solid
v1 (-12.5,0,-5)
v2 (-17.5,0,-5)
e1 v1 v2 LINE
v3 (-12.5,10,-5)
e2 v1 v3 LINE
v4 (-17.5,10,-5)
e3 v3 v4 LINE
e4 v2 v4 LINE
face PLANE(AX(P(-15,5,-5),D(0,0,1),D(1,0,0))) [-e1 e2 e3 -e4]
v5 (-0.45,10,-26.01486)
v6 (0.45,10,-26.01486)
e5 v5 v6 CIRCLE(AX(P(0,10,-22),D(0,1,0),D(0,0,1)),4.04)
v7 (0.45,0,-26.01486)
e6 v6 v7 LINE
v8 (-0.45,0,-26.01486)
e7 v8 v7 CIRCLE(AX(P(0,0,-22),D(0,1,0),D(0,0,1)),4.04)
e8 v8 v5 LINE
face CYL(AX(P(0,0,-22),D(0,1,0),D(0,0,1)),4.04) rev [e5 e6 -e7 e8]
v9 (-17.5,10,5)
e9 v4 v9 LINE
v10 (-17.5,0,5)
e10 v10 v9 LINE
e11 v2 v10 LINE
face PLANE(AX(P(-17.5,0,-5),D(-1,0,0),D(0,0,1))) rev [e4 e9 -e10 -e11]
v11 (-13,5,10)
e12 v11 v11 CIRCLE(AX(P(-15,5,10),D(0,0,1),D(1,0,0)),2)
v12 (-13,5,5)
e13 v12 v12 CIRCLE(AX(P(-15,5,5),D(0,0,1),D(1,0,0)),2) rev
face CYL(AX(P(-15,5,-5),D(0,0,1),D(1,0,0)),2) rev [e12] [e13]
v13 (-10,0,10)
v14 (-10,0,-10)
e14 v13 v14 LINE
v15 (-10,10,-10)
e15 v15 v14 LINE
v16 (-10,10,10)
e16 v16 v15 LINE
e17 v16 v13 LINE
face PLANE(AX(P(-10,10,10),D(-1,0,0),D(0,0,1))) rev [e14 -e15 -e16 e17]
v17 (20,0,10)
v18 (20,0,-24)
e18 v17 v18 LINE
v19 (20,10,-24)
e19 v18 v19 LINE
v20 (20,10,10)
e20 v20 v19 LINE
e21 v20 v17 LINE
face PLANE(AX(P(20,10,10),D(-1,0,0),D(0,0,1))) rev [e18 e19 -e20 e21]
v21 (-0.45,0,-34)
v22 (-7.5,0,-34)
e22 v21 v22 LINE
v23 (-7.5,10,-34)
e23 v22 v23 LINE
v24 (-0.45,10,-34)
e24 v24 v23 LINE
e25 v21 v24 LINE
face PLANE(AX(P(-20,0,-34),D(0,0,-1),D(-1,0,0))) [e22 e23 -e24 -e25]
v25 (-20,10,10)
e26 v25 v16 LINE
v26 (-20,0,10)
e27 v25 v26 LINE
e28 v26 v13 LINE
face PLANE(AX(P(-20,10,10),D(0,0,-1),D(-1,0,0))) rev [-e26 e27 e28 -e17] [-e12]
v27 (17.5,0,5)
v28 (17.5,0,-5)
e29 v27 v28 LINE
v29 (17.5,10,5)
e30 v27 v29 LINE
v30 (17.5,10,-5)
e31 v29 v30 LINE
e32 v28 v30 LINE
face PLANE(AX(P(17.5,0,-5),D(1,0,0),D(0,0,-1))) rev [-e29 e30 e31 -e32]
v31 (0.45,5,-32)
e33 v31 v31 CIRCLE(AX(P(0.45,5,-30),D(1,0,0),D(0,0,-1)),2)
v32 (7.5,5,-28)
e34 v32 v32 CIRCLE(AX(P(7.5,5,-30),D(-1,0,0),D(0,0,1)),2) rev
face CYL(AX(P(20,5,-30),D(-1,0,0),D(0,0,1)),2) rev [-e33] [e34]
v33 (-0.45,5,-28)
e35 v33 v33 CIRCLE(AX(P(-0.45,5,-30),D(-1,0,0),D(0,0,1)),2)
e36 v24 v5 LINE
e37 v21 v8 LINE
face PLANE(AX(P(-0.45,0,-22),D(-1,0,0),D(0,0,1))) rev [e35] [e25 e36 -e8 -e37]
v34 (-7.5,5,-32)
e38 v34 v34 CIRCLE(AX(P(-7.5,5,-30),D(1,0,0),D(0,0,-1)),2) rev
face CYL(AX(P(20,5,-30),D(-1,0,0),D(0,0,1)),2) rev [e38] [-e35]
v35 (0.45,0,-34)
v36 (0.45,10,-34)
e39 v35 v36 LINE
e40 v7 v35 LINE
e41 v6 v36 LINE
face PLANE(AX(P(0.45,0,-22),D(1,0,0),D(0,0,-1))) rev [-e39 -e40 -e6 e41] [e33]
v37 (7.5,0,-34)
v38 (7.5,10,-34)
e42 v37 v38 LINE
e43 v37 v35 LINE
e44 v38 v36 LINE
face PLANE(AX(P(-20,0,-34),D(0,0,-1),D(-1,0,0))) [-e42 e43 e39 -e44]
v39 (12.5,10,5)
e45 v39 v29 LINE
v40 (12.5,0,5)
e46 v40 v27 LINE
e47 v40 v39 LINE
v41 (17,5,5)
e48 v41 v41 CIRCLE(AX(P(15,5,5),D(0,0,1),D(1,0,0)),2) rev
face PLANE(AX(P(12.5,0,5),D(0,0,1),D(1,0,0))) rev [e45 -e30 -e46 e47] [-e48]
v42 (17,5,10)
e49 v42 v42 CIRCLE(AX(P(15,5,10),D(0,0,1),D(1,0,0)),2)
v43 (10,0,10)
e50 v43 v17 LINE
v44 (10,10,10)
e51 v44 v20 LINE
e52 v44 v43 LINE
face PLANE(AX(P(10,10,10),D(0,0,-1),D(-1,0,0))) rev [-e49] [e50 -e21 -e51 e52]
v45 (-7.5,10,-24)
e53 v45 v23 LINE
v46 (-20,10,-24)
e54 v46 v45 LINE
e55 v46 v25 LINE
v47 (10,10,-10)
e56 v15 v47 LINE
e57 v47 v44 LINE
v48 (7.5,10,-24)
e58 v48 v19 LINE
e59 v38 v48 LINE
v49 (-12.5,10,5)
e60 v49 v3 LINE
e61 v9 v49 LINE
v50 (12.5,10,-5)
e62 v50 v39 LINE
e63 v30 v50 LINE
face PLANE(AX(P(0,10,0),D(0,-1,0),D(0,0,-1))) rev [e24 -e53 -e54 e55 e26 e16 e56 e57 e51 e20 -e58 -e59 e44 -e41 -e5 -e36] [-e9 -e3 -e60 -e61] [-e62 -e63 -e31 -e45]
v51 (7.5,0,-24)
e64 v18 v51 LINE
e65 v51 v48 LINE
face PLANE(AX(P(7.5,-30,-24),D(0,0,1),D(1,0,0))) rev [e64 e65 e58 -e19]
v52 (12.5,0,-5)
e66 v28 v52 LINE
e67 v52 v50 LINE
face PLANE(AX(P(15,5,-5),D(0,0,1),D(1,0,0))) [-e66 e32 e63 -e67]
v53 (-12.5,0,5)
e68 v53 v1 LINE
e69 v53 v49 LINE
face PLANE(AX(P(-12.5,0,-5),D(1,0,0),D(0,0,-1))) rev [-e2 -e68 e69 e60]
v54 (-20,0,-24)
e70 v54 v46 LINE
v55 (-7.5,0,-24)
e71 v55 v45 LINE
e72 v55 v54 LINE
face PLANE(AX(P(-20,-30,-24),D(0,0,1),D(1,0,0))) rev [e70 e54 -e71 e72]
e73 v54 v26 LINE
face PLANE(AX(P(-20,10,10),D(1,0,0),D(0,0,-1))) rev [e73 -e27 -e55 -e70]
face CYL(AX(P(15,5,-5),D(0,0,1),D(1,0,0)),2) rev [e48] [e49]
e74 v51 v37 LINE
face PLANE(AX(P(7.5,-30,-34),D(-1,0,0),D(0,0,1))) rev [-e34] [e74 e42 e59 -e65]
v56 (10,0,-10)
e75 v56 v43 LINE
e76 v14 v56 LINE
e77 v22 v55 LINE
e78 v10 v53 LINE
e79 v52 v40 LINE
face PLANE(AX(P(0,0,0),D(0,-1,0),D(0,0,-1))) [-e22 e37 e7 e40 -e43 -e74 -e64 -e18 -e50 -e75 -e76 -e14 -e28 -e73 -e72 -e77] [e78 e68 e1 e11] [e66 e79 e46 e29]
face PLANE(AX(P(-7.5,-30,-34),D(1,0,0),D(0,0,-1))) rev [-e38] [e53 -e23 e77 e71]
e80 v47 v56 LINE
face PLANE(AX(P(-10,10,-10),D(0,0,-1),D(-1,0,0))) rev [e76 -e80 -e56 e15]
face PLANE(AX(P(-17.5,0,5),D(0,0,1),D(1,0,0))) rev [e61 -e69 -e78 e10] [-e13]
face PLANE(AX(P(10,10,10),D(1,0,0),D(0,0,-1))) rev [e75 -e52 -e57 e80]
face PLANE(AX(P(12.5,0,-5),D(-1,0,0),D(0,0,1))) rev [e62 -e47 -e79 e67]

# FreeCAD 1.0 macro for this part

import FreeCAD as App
import Part
import Sketcher


def add_polygon(sketch, points):
    """Adds a closed chain of lines whose ends are joined by coincident constraints."""
    first, n = sketch.GeometryCount, len(points)
    for a, b in zip(points, points[1:] + points[:1]):
        sketch.addGeometry(Part.LineSegment(App.Vector(*a, 0), App.Vector(*b, 0)), False)
    for i in range(n):
        sketch.addConstraint(Sketcher.Constraint("Coincident", first + i, 2, first + (i + 1) % n, 1))

doc = App.newDocument("Part")
body = doc.addObject("PartDesign::Body", "Body")

# Sketch on XZ plane
sketch1 = doc.addObject("Sketcher::SketchObject", "Sketch")
body.addObject(sketch1)
sketch1.AttachmentSupport = (doc.XZ_Plane, [""])
sketch1.MapMode = "FlatFace"
add_polygon(sketch1, [(-20, -20), (-20, 10), (-10, 10), (-10, -10), (10, -10), (10, 10), (20, 10), (20, -20)])  # lines 0-7
sketch1.addConstraint([
    Sketcher.Constraint("Vertical", 0),
    Sketcher.Constraint("Horizontal", 1),
    Sketcher.Constraint("Vertical", 2),
    Sketcher.Constraint("Horizontal", 3),
    Sketcher.Constraint("Vertical", 4),
    Sketcher.Constraint("Horizontal", 5),
    Sketcher.Constraint("Vertical", 6),
    Sketcher.Constraint("Horizontal", 7),
    Sketcher.Constraint("Symmetric", 1, 2, 3, 2, -1, 1),
    Sketcher.Constraint("Symmetric", 0, 2, 5, 2, -2),
    Sketcher.Constraint("Equal", 3, 2),
    Sketcher.Constraint("DistanceX", 1, 1, 1, 2, 10.0),
    Sketcher.Constraint("DistanceX", 3, 1, 3, 2, 20.0),
    Sketcher.Constraint("DistanceY", 0, 1, 0, 2, 30.0),
])
pad1 = doc.addObject("PartDesign::Pad", "Pad")
body.addObject(pad1)
pad1.Profile = sketch1
pad1.Length = 10
pad1.Reversed = True

# Sketch on XY plane
sketch2 = doc.addObject("Sketcher::SketchObject", "Sketch001")
body.addObject(sketch2)
sketch2.AttachmentSupport = (doc.XY_Plane, [""])
sketch2.MapMode = "FlatFace"
sketch2.AttachmentOffset = App.Placement(App.Vector(0, 0, 10), App.Rotation())
sketch2.addGeometry([
    Part.Circle(App.Vector(-15, 5, 0), App.Vector(0, 0, 1), 2),
    Part.Circle(App.Vector(15, 5, 0), App.Vector(0, 0, 1), 2),
], False)
sketch2.addConstraint([
    Sketcher.Constraint("Equal", 0, 1),
    Sketcher.Constraint("Symmetric", 0, 3, 1, 3, -2),
    Sketcher.Constraint("Diameter", 0, 4.0),
    Sketcher.Constraint("DistanceX", 0, 3, -1, 1, 15.0),
    Sketcher.Constraint("DistanceY", -1, 1, 0, 3, 5.0),
])
pocket1 = doc.addObject("PartDesign::Pocket", "Pocket")
body.addObject(pocket1)
pocket1.Profile = sketch2
pocket1.Length = 15

# Sketch on XY plane
sketch3 = doc.addObject("Sketcher::SketchObject", "Sketch002")
body.addObject(sketch3)
sketch3.AttachmentSupport = (doc.XY_Plane, [""])
sketch3.MapMode = "FlatFace"
sketch3.AttachmentOffset = App.Placement(App.Vector(0, 0, -10), App.Rotation())
sketch3.addGeometry(Part.Circle(App.Vector(0, 5, 0), App.Vector(0, 0, 1), 2), False)
sketch3.addConstraint([
    Sketcher.Constraint("PointOnObject", 0, 3, -2),
    Sketcher.Constraint("Diameter", 0, 4.0),
    Sketcher.Constraint("DistanceY", -1, 1, 0, 3, 5.0),
])
pocket2 = doc.addObject("PartDesign::Pocket", "Pocket001")
body.addObject(pocket2)
pocket2.Profile = sketch3
pocket2.Length = 11

# Sketch on XZ plane
sketch4 = doc.addObject("Sketcher::SketchObject", "Sketch003")
body.addObject(sketch4)
sketch4.AttachmentSupport = (doc.XZ_Plane, [""])
sketch4.MapMode = "FlatFace"
sketch4.AttachmentOffset = App.Placement(App.Vector(0, 0, -10), App.Rotation())
add_polygon(sketch4, [(-20, -34), (-20, -10), (20, -10), (20, -34)])  # lines 0-3
sketch4.addConstraint([
    Sketcher.Constraint("Vertical", 0),
    Sketcher.Constraint("Horizontal", 1),
    Sketcher.Constraint("Vertical", 2),
    Sketcher.Constraint("Horizontal", 3),
    Sketcher.Constraint("DistanceX", 1, 1, 1, 2, 40.0),
    Sketcher.Constraint("DistanceY", 0, 1, 0, 2, 24.0),
    Sketcher.Constraint("DistanceX", 0, 2, -1, 1, 20.0),
    Sketcher.Constraint("DistanceY", 0, 2, -1, 1, 10.0),
])
pad2 = doc.addObject("PartDesign::Pad", "Pad001")
body.addObject(pad2)
pad2.Profile = sketch4
pad2.Length = 10

# Sketch on XZ plane
sketch5 = doc.addObject("Sketcher::SketchObject", "Sketch004")
body.addObject(sketch5)
sketch5.AttachmentSupport = (doc.XZ_Plane, [""])
sketch5.MapMode = "FlatFace"
sketch5.AttachmentOffset = App.Placement(App.Vector(0, 0, -10), App.Rotation())
sketch5.addGeometry(Part.Circle(App.Vector(0, -22, 0), App.Vector(0, 0, 1), 4.04), False)
sketch5.addConstraint([
    Sketcher.Constraint("PointOnObject", 0, 3, -2),
    Sketcher.Constraint("Diameter", 0, 8.08),
    Sketcher.Constraint("DistanceY", 0, 3, -1, 1, 22.0),
])
pocket3 = doc.addObject("PartDesign::Pocket", "Pocket002")
body.addObject(pocket3)
pocket3.Profile = sketch5
pocket3.Type = "ThroughAll"
pocket3.Reversed = True

# Sketch on XZ plane
sketch6 = doc.addObject("Sketcher::SketchObject", "Sketch005")
body.addObject(sketch6)
sketch6.AttachmentSupport = (doc.XZ_Plane, [""])
sketch6.MapMode = "FlatFace"
sketch6.AttachmentOffset = App.Placement(App.Vector(0, 0, -10), App.Rotation())
add_polygon(sketch6, [(-0.45, -34), (-0.45, -22), (0.45, -22), (0.45, -34)])  # lines 0-3
sketch6.addConstraint([
    Sketcher.Constraint("Vertical", 0),
    Sketcher.Constraint("Horizontal", 1),
    Sketcher.Constraint("Vertical", 2),
    Sketcher.Constraint("Horizontal", 3),
    Sketcher.Constraint("DistanceY", 0, 1, 0, 2, 12.0),
    Sketcher.Constraint("DistanceX", 1, 1, 1, 2, 0.9),
    Sketcher.Constraint("DistanceY", 0, 2, -1, 1, 22.0),
    Sketcher.Constraint("DistanceX", 0, 2, -1, 1, 0.45),
])
pocket4 = doc.addObject("PartDesign::Pocket", "Pocket003")
body.addObject(pocket4)
pocket4.Profile = sketch6
pocket4.Type = "ThroughAll"
pocket4.Reversed = True

# Sketch on YZ plane
sketch7 = doc.addObject("Sketcher::SketchObject", "Sketch006")
body.addObject(sketch7)
sketch7.AttachmentSupport = (doc.YZ_Plane, [""])
sketch7.MapMode = "FlatFace"
sketch7.AttachmentOffset = App.Placement(App.Vector(0, 0, -20), App.Rotation())
sketch7.addGeometry(Part.Circle(App.Vector(5, -30, 0), App.Vector(0, 0, 1), 2), False)
sketch7.addConstraint([
    Sketcher.Constraint("Diameter", 0, 4.0),
    Sketcher.Constraint("DistanceX", -1, 1, 0, 3, 5.0),
    Sketcher.Constraint("DistanceY", 0, 3, -1, 1, 30.0),
])
pocket5 = doc.addObject("PartDesign::Pocket", "Pocket004")
body.addObject(pocket5)
pocket5.Profile = sketch7
pocket5.Length = 40
pocket5.Reversed = True

# Sketch on XZ plane
sketch8 = doc.addObject("Sketcher::SketchObject", "Sketch007")
body.addObject(sketch8)
sketch8.AttachmentSupport = (doc.XZ_Plane, [""])
sketch8.MapMode = "FlatFace"
sketch8.AttachmentOffset = App.Placement(App.Vector(0, 0, -10), App.Rotation())
add_polygon(sketch8, [(7.5, -34), (7.5, -24), (20, -24), (20, -34)])  # lines 0-3
add_polygon(sketch8, [(-20, -34), (-20, -24), (-7.5, -24), (-7.5, -34)])  # lines 4-7
sketch8.addConstraint([
    Sketcher.Constraint("Vertical", 0),
    Sketcher.Constraint("Horizontal", 1),
    Sketcher.Constraint("Vertical", 2),
    Sketcher.Constraint("Horizontal", 3),
    Sketcher.Constraint("Vertical", 4),
    Sketcher.Constraint("Horizontal", 5),
    Sketcher.Constraint("Vertical", 6),
    Sketcher.Constraint("Horizontal", 7),
    Sketcher.Constraint("Symmetric", 1, 2, 4, 2, -2),
    Sketcher.Constraint("Symmetric", 3, 2, 6, 2, -2),
    Sketcher.Constraint("DistanceY", 0, 1, 0, 2, 10.0),
    Sketcher.Constraint("DistanceX", 1, 1, 1, 2, 12.5),
    Sketcher.Constraint("DistanceY", 0, 2, -1, 1, 24.0),
    Sketcher.Constraint("DistanceX", -1, 1, 1, 2, 20.0),
])
pocket6 = doc.addObject("PartDesign::Pocket", "Pocket005")
body.addObject(pocket6)
pocket6.Profile = sketch8
pocket6.Length = 40
pocket6.Reversed = True

# Sketch on XZ plane
sketch9 = doc.addObject("Sketcher::SketchObject", "Sketch008")
body.addObject(sketch9)
sketch9.AttachmentSupport = (doc.XZ_Plane, [""])
sketch9.MapMode = "FlatFace"
sketch9.AttachmentOffset = App.Placement(App.Vector(0, 0, -10), App.Rotation())
add_polygon(sketch9, [(-17.5, -5), (-17.5, 5), (-12.5, 5), (-12.5, -5)])  # lines 0-3
add_polygon(sketch9, [(12.5, -5), (12.5, 5), (17.5, 5), (17.5, -5)])  # lines 4-7
sketch9.addConstraint([
    Sketcher.Constraint("Vertical", 0),
    Sketcher.Constraint("Horizontal", 1),
    Sketcher.Constraint("Vertical", 2),
    Sketcher.Constraint("Horizontal", 3),
    Sketcher.Constraint("Vertical", 4),
    Sketcher.Constraint("Horizontal", 5),
    Sketcher.Constraint("Vertical", 6),
    Sketcher.Constraint("Horizontal", 7),
    Sketcher.Constraint("Symmetric", 2, 2, 4, 2, -1, 1),
    Sketcher.Constraint("Symmetric", 0, 2, 6, 2, -1, 1),
    Sketcher.Constraint("Horizontal", 1, 2, 4, 2),
    Sketcher.Constraint("DistanceX", 1, 1, 1, 2, 5.0),
    Sketcher.Constraint("DistanceY", 0, 1, 0, 2, 10.0),
    Sketcher.Constraint("DistanceX", 1, 2, 4, 2, 25.0),
])
pocket7 = doc.addObject("PartDesign::Pocket", "Pocket006")
body.addObject(pocket7)
pocket7.Profile = sketch9
pocket7.Length = 10
pocket7.Reversed = True

doc.recompute()
